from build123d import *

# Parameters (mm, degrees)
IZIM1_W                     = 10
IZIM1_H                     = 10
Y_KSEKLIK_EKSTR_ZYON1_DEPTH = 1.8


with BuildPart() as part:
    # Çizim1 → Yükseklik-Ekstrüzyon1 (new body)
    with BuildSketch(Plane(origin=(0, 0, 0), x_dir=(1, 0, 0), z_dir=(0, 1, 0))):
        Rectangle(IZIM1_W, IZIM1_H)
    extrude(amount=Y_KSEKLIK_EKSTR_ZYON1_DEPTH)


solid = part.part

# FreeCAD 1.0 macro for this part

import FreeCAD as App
import Part
import Sketcher


def add_polygon(sketch, points):
    """Adds a closed chain of lines whose ends are joined by coincident constraints."""
    first, n = sketch.GeometryCount, len(points)
    for a, b in zip(points, points[1:] + points[:1]):
        sketch.addGeometry(Part.LineSegment(App.Vector(*a, 0), App.Vector(*b, 0)), False)
    for i in range(n):
        sketch.addConstraint(Sketcher.Constraint("Coincident", first + i, 2, first + (i + 1) % n, 1))

doc = App.newDocument("Part")
params = doc.addObject("Spreadsheet::Sheet", "Params")
for row, (alias, value) in enumerate([
    ("sketch1_width", "10 mm"),
    ("pad1_length", "1.8 mm"),
], start=1):
    params.set(f"A{row}", alias)
    params.set(f"B{row}", "=" + value)
    params.setAlias(f"B{row}", alias)

body = doc.addObject("PartDesign::Body", "Body")

# Sketch on XZ plane
sketch1 = doc.addObject("Sketcher::SketchObject", "Sketch")
body.addObject(sketch1)
sketch1.AttachmentSupport = (doc.XZ_Plane, [""])
sketch1.MapMode = "FlatFace"
add_polygon(sketch1, [(-5, -5), (-5, 5), (5, 5), (5, -5)])  # lines 0-3
sketch1.addConstraint(Sketcher.Constraint("Vertical", 0))
sketch1.addConstraint(Sketcher.Constraint("Horizontal", 1))
sketch1.addConstraint(Sketcher.Constraint("Vertical", 2))
sketch1.addConstraint(Sketcher.Constraint("Horizontal", 3))
sketch1.addConstraint(Sketcher.Constraint("Symmetric", 0, 2, 2, 2, -1, 1))
sketch1.addConstraint(Sketcher.Constraint("Equal", 3, 0))
sketch1.addConstraint(Sketcher.Constraint("DistanceX", 1, 1, 1, 2, 10.0))
sketch1.setExpression("Constraints[10]", "Params.sketch1_width")
pad1 = doc.addObject("PartDesign::Pad", "Pad")
body.addObject(pad1)
pad1.Profile = sketch1
pad1.setExpression("Length", "Params.pad1_length")
pad1.Reversed = True

doc.recompute()
